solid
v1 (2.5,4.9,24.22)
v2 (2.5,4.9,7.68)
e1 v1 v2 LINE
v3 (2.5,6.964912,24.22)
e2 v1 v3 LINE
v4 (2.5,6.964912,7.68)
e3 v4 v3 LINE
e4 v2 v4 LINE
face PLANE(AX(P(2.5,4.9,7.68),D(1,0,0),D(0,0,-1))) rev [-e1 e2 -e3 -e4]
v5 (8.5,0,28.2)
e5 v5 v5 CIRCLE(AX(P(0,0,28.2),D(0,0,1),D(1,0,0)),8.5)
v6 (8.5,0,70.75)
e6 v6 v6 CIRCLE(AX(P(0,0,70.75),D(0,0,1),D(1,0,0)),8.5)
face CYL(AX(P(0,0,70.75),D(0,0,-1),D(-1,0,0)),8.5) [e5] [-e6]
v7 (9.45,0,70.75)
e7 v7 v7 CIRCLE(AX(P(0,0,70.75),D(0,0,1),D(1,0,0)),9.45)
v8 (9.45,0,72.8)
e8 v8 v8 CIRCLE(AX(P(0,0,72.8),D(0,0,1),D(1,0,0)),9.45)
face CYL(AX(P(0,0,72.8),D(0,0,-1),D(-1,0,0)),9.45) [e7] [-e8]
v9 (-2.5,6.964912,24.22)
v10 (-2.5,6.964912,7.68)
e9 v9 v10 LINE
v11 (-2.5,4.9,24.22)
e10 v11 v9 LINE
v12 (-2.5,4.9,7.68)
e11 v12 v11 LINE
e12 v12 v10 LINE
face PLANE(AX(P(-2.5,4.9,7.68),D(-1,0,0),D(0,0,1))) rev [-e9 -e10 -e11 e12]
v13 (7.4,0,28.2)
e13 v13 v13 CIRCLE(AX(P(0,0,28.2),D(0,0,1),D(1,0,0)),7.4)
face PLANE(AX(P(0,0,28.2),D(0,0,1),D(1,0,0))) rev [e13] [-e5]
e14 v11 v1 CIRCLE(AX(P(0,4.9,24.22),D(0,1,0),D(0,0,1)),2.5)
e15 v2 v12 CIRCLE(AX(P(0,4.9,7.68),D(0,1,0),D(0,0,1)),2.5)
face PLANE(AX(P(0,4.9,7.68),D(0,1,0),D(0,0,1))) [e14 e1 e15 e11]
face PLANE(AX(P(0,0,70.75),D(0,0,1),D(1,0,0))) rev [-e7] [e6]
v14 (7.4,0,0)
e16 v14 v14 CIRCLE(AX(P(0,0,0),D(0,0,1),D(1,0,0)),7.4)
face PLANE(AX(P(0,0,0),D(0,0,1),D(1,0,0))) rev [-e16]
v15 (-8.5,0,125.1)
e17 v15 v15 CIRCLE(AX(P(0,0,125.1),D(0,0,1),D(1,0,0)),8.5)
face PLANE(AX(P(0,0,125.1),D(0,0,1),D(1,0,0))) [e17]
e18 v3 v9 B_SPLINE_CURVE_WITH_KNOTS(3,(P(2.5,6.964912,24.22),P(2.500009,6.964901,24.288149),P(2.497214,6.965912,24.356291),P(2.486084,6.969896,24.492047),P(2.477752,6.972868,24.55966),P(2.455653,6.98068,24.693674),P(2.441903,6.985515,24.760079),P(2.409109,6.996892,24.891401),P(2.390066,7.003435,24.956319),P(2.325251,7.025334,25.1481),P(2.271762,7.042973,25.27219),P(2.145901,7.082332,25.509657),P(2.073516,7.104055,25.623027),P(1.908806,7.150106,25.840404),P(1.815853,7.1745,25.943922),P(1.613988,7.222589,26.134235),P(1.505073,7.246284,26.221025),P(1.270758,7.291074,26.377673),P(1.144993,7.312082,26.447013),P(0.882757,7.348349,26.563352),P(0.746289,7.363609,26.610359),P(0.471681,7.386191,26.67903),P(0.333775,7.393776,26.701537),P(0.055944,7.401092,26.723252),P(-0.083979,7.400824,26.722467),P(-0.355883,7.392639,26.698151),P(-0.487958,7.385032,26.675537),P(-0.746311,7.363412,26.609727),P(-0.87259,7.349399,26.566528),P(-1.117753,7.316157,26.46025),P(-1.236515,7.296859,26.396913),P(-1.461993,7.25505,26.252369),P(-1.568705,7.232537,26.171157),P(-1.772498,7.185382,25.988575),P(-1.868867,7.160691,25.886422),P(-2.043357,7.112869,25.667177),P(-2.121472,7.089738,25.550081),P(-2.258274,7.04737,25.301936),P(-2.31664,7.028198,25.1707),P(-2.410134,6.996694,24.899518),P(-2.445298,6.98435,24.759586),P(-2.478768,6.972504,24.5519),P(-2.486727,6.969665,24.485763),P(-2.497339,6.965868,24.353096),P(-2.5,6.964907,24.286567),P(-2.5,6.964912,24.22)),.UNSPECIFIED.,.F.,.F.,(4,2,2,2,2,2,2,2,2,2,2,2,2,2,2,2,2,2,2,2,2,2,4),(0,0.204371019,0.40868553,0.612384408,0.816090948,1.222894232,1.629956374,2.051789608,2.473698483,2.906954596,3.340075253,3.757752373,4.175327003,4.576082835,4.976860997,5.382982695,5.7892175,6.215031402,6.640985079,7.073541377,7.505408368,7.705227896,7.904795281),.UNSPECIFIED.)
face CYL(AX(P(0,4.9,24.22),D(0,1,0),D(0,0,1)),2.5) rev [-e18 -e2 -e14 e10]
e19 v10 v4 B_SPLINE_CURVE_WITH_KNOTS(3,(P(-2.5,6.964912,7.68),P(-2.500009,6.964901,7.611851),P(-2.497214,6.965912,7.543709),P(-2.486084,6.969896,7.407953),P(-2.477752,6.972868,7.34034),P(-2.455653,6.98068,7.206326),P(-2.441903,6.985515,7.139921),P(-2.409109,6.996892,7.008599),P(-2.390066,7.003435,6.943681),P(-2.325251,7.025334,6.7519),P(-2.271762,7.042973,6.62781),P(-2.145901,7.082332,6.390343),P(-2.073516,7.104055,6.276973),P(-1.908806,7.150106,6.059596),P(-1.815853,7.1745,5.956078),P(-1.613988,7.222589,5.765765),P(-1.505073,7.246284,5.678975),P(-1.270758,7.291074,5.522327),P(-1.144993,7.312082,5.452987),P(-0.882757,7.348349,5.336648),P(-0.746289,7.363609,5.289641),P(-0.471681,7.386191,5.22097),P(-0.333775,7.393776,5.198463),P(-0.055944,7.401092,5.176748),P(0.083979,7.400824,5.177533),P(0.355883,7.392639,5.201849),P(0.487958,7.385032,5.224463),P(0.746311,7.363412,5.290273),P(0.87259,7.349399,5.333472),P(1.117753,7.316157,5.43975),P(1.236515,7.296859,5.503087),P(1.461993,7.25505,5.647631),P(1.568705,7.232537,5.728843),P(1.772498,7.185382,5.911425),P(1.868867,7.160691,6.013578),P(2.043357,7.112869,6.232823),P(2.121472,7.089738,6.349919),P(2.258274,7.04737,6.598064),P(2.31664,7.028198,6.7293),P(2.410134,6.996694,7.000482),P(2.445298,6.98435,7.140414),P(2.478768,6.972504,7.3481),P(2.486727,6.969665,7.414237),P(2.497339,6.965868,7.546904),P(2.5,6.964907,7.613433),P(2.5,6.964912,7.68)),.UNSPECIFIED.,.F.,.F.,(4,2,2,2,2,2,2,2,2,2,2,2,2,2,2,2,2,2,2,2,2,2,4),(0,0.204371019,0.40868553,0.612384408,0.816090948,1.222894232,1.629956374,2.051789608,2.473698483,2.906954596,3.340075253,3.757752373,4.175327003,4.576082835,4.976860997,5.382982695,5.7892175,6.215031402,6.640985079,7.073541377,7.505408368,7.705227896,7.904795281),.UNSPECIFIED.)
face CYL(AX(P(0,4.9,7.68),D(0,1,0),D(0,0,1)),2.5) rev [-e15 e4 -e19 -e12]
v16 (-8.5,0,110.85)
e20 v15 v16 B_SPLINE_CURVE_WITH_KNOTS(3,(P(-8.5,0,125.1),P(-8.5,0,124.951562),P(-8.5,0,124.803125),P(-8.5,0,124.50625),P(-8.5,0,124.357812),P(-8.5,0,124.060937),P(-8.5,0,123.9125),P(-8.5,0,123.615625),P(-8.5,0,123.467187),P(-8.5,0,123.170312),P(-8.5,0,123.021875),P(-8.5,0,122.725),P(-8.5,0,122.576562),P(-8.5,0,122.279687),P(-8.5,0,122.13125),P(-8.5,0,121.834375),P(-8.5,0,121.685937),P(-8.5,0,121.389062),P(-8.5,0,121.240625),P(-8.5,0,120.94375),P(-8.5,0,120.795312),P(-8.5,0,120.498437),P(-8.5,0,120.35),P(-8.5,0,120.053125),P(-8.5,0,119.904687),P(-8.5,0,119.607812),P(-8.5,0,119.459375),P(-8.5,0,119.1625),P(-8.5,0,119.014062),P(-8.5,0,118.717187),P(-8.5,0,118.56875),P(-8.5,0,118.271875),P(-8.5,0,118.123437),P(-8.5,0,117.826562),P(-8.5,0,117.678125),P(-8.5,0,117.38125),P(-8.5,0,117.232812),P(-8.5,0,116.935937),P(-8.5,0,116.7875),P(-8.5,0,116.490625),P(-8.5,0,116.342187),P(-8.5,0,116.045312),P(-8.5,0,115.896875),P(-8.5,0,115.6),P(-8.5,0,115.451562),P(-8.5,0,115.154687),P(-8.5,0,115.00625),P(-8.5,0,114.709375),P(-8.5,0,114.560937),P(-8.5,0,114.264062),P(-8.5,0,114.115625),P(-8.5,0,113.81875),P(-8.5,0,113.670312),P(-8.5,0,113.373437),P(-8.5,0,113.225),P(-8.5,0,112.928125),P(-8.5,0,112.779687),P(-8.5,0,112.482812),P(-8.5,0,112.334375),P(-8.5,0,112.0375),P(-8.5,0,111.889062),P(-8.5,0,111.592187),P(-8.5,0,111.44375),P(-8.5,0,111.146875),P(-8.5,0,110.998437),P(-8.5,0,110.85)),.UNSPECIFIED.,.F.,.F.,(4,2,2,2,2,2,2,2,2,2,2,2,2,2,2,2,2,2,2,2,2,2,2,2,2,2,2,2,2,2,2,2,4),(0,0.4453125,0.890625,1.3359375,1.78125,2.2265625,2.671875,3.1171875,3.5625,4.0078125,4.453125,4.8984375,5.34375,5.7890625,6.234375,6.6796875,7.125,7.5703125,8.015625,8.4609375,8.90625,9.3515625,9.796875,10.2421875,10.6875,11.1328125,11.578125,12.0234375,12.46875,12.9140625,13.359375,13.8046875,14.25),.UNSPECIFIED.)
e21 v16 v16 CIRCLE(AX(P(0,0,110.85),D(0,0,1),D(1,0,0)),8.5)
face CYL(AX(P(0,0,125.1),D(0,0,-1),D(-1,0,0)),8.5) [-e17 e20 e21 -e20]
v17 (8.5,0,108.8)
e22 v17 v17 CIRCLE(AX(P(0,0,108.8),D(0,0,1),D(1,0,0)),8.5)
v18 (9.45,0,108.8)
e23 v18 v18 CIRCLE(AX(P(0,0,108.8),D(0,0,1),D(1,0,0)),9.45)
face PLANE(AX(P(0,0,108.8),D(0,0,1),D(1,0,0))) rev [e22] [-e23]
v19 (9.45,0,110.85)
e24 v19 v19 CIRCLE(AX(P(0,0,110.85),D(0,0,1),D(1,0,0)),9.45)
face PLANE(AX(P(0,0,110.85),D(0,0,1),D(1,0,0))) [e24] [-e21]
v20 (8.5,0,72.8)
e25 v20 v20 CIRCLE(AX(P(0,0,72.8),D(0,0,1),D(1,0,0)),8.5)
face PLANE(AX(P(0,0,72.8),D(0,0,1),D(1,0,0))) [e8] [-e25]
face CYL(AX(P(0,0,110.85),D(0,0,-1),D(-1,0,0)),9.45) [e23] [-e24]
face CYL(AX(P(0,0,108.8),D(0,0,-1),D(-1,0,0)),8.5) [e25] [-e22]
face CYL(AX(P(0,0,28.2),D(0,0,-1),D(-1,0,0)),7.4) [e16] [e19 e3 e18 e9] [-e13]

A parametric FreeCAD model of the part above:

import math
import FreeCAD as App
import Part
import Sketcher
from FreeCAD import Vector
Q = App.Units.Quantity

doc = App.newDocument("Part")
body = doc.addObject("PartDesign::Body", "Body")

# Sketch on XY plane
sketch1 = body.newObject("Sketcher::SketchObject", "Sketch")
sketch1.AttachmentSupport = (doc.getObject("XY_Plane"), [""])
sketch1.MapMode = "FlatFace"
sketch1.addGeometry(Part.Circle(Vector(0, 0, 0), Vector(0, 0, 1), 7), False)
sketch1.addConstraint(Sketcher.Constraint("Coincident", 0, 3, -1, 1))
sketch1.addConstraint(Sketcher.Constraint("Diameter", 0, Q("14.8 mm")))
pad1 = body.newObject("PartDesign::Pad", "Pad")
pad1.Profile = sketch1
pad1.Length = 28.2

# Sketch on XY plane
sketch2 = body.newObject("Sketcher::SketchObject", "Sketch001")
sketch2.AttachmentSupport = (doc.getObject("XY_Plane"), [""])
sketch2.MapMode = "FlatFace"
sketch2.AttachmentOffset = App.Placement(Vector(0, 0, 28.2), App.Rotation())
sketch2.addGeometry(Part.Circle(Vector(0, 0, 0), Vector(0, 0, 1), 8), False)
sketch2.addConstraint(Sketcher.Constraint("Coincident", 0, 3, -1, 1))
sketch2.addConstraint(Sketcher.Constraint("Diameter", 0, Q("17 mm")))
pad2 = body.newObject("PartDesign::Pad", "Pad001")
pad2.Profile = sketch2
pad2.Length = 42.55

# Sketch on XY plane
sketch3 = body.newObject("Sketcher::SketchObject", "Sketch002")
sketch3.AttachmentSupport = (doc.getObject("XY_Plane"), [""])
sketch3.MapMode = "FlatFace"
sketch3.AttachmentOffset = App.Placement(Vector(0, 0, 70.75), App.Rotation())
sketch3.addGeometry(Part.Circle(Vector(0, 0, 0), Vector(0, 0, 1), 9), False)
sketch3.addConstraint(Sketcher.Constraint("Coincident", 0, 3, -1, 1))
sketch3.addConstraint(Sketcher.Constraint("Diameter", 0, Q("18.9 mm")))
pad3 = body.newObject("PartDesign::Pad", "Pad002")
pad3.Profile = sketch3
pad3.Length = 2.05
body2 = doc.addObject("PartDesign::Body", "Body001")

# Sketch on XY plane
sketch4 = body2.newObject("Sketcher::SketchObject", "Sketch003")
sketch4.AttachmentSupport = (doc.getObject("XY_Plane001"), [""])
sketch4.MapMode = "FlatFace"
sketch4.AttachmentOffset = App.Placement(Vector(0, 0, 108.8), App.Rotation())
sketch4.addGeometry(Part.Circle(Vector(0, 0, 0), Vector(0, 0, 1), 9), False)
sketch4.addConstraint(Sketcher.Constraint("Coincident", 0, 3, -1, 1))
sketch4.addConstraint(Sketcher.Constraint("Diameter", 0, Q("18.9 mm")))
pad4 = body2.newObject("PartDesign::Pad", "Pad003")
pad4.Profile = sketch4
pad4.Length = 2.05
body.AllowCompound = True
doc.recompute()

boolean = body.newObject("PartDesign::Boolean", "Boolean")
boolean.Type = "Fuse"
boolean.addObjects([body2])

# Sketch on XY plane
sketch5 = body.newObject("Sketcher::SketchObject", "Sketch004")
sketch5.AttachmentSupport = (doc.getObject("XY_Plane"), [""])
sketch5.MapMode = "FlatFace"
sketch5.AttachmentOffset = App.Placement(Vector(0, 0, 72.8), App.Rotation())
sketch5.addGeometry(Part.Circle(Vector(0, 0, 0), Vector(0, 0, 1), 8), False)
sketch5.addConstraint(Sketcher.Constraint("Coincident", 0, 3, -1, 1))
sketch5.addConstraint(Sketcher.Constraint("Diameter", 0, Q("17 mm")))
pad5 = body.newObject("PartDesign::Pad", "Pad004")
pad5.Profile = sketch5
pad5.Length = 36

# Sketch on XY plane
sketch6 = body.newObject("Sketcher::SketchObject", "Sketch005")
sketch6.AttachmentSupport = (doc.getObject("XY_Plane"), [""])
sketch6.MapMode = "FlatFace"
sketch6.AttachmentOffset = App.Placement(Vector(0, 0, 110.85), App.Rotation())
sketch6.addGeometry(Part.Circle(Vector(0, 0, 0), Vector(0, 0, 1), 8), False)
sketch6.addConstraint(Sketcher.Constraint("Coincident", 0, 3, -1, 1))
sketch6.addConstraint(Sketcher.Constraint("Diameter", 0, Q("17 mm")))
pad6 = body.newObject("PartDesign::Pad", "Pad005")
pad6.Profile = sketch6
pad6.Length = 14.25

# Sketch on XZ plane
sketch7 = body.newObject("Sketcher::SketchObject", "Sketch006")
sketch7.AttachmentSupport = (doc.getObject("XZ_Plane"), [""])
sketch7.MapMode = "FlatFace"
sketch7.AttachmentOffset = App.Placement(Vector(0, 0, -7.4), App.Rotation())
sketch7.addGeometry(Part.LineSegment(Vector(2.5, 24.2, 0), Vector(2.5, 7.7, 0)), False)
sketch7.addGeometry(Part.ArcOfCircle(Part.Circle(Vector(0, 7.7, 0), Vector(0, 0, 1), 2.5), math.radians(180), math.radians(360)), False)
sketch7.addGeometry(Part.LineSegment(Vector(-2.5, 7.7, 0), Vector(-2.5, 24.2, 0)), False)
sketch7.addGeometry(Part.ArcOfCircle(Part.Circle(Vector(0, 24.2, 0), Vector(0, 0, 1), 2.5), math.radians(0), math.radians(180)), False)
sketch7.addConstraint(Sketcher.Constraint("Tangent", 0, 2, 1, 2))
sketch7.addConstraint(Sketcher.Constraint("Tangent", 1, 1, 2, 1))
sketch7.addConstraint(Sketcher.Constraint("Tangent", 2, 2, 3, 2))
sketch7.addConstraint(Sketcher.Constraint("Tangent", 3, 1, 0, 1))
sketch7.addConstraint(Sketcher.Constraint("Vertical", 0))
sketch7.addConstraint(Sketcher.Constraint("Vertical", 2))
sketch7.addConstraint(Sketcher.Constraint("PointOnObject", 1, 3, -2))
sketch7.addConstraint(Sketcher.Constraint("Radius", 1, Q("2.5 mm")))
sketch7.addConstraint(Sketcher.Constraint("DistanceY", 0, 2, 0, 1, Q("16.54 mm")))
sketch7.addConstraint(Sketcher.Constraint("DistanceY", -1, 1, 1, 3, Q("7.68 mm")))
pocket1 = body.newObject("PartDesign::Pocket", "Pocket")
pocket1.Profile = sketch7
pocket1.Length = 2.5
pocket1.Reversed = True

doc.recompute()
